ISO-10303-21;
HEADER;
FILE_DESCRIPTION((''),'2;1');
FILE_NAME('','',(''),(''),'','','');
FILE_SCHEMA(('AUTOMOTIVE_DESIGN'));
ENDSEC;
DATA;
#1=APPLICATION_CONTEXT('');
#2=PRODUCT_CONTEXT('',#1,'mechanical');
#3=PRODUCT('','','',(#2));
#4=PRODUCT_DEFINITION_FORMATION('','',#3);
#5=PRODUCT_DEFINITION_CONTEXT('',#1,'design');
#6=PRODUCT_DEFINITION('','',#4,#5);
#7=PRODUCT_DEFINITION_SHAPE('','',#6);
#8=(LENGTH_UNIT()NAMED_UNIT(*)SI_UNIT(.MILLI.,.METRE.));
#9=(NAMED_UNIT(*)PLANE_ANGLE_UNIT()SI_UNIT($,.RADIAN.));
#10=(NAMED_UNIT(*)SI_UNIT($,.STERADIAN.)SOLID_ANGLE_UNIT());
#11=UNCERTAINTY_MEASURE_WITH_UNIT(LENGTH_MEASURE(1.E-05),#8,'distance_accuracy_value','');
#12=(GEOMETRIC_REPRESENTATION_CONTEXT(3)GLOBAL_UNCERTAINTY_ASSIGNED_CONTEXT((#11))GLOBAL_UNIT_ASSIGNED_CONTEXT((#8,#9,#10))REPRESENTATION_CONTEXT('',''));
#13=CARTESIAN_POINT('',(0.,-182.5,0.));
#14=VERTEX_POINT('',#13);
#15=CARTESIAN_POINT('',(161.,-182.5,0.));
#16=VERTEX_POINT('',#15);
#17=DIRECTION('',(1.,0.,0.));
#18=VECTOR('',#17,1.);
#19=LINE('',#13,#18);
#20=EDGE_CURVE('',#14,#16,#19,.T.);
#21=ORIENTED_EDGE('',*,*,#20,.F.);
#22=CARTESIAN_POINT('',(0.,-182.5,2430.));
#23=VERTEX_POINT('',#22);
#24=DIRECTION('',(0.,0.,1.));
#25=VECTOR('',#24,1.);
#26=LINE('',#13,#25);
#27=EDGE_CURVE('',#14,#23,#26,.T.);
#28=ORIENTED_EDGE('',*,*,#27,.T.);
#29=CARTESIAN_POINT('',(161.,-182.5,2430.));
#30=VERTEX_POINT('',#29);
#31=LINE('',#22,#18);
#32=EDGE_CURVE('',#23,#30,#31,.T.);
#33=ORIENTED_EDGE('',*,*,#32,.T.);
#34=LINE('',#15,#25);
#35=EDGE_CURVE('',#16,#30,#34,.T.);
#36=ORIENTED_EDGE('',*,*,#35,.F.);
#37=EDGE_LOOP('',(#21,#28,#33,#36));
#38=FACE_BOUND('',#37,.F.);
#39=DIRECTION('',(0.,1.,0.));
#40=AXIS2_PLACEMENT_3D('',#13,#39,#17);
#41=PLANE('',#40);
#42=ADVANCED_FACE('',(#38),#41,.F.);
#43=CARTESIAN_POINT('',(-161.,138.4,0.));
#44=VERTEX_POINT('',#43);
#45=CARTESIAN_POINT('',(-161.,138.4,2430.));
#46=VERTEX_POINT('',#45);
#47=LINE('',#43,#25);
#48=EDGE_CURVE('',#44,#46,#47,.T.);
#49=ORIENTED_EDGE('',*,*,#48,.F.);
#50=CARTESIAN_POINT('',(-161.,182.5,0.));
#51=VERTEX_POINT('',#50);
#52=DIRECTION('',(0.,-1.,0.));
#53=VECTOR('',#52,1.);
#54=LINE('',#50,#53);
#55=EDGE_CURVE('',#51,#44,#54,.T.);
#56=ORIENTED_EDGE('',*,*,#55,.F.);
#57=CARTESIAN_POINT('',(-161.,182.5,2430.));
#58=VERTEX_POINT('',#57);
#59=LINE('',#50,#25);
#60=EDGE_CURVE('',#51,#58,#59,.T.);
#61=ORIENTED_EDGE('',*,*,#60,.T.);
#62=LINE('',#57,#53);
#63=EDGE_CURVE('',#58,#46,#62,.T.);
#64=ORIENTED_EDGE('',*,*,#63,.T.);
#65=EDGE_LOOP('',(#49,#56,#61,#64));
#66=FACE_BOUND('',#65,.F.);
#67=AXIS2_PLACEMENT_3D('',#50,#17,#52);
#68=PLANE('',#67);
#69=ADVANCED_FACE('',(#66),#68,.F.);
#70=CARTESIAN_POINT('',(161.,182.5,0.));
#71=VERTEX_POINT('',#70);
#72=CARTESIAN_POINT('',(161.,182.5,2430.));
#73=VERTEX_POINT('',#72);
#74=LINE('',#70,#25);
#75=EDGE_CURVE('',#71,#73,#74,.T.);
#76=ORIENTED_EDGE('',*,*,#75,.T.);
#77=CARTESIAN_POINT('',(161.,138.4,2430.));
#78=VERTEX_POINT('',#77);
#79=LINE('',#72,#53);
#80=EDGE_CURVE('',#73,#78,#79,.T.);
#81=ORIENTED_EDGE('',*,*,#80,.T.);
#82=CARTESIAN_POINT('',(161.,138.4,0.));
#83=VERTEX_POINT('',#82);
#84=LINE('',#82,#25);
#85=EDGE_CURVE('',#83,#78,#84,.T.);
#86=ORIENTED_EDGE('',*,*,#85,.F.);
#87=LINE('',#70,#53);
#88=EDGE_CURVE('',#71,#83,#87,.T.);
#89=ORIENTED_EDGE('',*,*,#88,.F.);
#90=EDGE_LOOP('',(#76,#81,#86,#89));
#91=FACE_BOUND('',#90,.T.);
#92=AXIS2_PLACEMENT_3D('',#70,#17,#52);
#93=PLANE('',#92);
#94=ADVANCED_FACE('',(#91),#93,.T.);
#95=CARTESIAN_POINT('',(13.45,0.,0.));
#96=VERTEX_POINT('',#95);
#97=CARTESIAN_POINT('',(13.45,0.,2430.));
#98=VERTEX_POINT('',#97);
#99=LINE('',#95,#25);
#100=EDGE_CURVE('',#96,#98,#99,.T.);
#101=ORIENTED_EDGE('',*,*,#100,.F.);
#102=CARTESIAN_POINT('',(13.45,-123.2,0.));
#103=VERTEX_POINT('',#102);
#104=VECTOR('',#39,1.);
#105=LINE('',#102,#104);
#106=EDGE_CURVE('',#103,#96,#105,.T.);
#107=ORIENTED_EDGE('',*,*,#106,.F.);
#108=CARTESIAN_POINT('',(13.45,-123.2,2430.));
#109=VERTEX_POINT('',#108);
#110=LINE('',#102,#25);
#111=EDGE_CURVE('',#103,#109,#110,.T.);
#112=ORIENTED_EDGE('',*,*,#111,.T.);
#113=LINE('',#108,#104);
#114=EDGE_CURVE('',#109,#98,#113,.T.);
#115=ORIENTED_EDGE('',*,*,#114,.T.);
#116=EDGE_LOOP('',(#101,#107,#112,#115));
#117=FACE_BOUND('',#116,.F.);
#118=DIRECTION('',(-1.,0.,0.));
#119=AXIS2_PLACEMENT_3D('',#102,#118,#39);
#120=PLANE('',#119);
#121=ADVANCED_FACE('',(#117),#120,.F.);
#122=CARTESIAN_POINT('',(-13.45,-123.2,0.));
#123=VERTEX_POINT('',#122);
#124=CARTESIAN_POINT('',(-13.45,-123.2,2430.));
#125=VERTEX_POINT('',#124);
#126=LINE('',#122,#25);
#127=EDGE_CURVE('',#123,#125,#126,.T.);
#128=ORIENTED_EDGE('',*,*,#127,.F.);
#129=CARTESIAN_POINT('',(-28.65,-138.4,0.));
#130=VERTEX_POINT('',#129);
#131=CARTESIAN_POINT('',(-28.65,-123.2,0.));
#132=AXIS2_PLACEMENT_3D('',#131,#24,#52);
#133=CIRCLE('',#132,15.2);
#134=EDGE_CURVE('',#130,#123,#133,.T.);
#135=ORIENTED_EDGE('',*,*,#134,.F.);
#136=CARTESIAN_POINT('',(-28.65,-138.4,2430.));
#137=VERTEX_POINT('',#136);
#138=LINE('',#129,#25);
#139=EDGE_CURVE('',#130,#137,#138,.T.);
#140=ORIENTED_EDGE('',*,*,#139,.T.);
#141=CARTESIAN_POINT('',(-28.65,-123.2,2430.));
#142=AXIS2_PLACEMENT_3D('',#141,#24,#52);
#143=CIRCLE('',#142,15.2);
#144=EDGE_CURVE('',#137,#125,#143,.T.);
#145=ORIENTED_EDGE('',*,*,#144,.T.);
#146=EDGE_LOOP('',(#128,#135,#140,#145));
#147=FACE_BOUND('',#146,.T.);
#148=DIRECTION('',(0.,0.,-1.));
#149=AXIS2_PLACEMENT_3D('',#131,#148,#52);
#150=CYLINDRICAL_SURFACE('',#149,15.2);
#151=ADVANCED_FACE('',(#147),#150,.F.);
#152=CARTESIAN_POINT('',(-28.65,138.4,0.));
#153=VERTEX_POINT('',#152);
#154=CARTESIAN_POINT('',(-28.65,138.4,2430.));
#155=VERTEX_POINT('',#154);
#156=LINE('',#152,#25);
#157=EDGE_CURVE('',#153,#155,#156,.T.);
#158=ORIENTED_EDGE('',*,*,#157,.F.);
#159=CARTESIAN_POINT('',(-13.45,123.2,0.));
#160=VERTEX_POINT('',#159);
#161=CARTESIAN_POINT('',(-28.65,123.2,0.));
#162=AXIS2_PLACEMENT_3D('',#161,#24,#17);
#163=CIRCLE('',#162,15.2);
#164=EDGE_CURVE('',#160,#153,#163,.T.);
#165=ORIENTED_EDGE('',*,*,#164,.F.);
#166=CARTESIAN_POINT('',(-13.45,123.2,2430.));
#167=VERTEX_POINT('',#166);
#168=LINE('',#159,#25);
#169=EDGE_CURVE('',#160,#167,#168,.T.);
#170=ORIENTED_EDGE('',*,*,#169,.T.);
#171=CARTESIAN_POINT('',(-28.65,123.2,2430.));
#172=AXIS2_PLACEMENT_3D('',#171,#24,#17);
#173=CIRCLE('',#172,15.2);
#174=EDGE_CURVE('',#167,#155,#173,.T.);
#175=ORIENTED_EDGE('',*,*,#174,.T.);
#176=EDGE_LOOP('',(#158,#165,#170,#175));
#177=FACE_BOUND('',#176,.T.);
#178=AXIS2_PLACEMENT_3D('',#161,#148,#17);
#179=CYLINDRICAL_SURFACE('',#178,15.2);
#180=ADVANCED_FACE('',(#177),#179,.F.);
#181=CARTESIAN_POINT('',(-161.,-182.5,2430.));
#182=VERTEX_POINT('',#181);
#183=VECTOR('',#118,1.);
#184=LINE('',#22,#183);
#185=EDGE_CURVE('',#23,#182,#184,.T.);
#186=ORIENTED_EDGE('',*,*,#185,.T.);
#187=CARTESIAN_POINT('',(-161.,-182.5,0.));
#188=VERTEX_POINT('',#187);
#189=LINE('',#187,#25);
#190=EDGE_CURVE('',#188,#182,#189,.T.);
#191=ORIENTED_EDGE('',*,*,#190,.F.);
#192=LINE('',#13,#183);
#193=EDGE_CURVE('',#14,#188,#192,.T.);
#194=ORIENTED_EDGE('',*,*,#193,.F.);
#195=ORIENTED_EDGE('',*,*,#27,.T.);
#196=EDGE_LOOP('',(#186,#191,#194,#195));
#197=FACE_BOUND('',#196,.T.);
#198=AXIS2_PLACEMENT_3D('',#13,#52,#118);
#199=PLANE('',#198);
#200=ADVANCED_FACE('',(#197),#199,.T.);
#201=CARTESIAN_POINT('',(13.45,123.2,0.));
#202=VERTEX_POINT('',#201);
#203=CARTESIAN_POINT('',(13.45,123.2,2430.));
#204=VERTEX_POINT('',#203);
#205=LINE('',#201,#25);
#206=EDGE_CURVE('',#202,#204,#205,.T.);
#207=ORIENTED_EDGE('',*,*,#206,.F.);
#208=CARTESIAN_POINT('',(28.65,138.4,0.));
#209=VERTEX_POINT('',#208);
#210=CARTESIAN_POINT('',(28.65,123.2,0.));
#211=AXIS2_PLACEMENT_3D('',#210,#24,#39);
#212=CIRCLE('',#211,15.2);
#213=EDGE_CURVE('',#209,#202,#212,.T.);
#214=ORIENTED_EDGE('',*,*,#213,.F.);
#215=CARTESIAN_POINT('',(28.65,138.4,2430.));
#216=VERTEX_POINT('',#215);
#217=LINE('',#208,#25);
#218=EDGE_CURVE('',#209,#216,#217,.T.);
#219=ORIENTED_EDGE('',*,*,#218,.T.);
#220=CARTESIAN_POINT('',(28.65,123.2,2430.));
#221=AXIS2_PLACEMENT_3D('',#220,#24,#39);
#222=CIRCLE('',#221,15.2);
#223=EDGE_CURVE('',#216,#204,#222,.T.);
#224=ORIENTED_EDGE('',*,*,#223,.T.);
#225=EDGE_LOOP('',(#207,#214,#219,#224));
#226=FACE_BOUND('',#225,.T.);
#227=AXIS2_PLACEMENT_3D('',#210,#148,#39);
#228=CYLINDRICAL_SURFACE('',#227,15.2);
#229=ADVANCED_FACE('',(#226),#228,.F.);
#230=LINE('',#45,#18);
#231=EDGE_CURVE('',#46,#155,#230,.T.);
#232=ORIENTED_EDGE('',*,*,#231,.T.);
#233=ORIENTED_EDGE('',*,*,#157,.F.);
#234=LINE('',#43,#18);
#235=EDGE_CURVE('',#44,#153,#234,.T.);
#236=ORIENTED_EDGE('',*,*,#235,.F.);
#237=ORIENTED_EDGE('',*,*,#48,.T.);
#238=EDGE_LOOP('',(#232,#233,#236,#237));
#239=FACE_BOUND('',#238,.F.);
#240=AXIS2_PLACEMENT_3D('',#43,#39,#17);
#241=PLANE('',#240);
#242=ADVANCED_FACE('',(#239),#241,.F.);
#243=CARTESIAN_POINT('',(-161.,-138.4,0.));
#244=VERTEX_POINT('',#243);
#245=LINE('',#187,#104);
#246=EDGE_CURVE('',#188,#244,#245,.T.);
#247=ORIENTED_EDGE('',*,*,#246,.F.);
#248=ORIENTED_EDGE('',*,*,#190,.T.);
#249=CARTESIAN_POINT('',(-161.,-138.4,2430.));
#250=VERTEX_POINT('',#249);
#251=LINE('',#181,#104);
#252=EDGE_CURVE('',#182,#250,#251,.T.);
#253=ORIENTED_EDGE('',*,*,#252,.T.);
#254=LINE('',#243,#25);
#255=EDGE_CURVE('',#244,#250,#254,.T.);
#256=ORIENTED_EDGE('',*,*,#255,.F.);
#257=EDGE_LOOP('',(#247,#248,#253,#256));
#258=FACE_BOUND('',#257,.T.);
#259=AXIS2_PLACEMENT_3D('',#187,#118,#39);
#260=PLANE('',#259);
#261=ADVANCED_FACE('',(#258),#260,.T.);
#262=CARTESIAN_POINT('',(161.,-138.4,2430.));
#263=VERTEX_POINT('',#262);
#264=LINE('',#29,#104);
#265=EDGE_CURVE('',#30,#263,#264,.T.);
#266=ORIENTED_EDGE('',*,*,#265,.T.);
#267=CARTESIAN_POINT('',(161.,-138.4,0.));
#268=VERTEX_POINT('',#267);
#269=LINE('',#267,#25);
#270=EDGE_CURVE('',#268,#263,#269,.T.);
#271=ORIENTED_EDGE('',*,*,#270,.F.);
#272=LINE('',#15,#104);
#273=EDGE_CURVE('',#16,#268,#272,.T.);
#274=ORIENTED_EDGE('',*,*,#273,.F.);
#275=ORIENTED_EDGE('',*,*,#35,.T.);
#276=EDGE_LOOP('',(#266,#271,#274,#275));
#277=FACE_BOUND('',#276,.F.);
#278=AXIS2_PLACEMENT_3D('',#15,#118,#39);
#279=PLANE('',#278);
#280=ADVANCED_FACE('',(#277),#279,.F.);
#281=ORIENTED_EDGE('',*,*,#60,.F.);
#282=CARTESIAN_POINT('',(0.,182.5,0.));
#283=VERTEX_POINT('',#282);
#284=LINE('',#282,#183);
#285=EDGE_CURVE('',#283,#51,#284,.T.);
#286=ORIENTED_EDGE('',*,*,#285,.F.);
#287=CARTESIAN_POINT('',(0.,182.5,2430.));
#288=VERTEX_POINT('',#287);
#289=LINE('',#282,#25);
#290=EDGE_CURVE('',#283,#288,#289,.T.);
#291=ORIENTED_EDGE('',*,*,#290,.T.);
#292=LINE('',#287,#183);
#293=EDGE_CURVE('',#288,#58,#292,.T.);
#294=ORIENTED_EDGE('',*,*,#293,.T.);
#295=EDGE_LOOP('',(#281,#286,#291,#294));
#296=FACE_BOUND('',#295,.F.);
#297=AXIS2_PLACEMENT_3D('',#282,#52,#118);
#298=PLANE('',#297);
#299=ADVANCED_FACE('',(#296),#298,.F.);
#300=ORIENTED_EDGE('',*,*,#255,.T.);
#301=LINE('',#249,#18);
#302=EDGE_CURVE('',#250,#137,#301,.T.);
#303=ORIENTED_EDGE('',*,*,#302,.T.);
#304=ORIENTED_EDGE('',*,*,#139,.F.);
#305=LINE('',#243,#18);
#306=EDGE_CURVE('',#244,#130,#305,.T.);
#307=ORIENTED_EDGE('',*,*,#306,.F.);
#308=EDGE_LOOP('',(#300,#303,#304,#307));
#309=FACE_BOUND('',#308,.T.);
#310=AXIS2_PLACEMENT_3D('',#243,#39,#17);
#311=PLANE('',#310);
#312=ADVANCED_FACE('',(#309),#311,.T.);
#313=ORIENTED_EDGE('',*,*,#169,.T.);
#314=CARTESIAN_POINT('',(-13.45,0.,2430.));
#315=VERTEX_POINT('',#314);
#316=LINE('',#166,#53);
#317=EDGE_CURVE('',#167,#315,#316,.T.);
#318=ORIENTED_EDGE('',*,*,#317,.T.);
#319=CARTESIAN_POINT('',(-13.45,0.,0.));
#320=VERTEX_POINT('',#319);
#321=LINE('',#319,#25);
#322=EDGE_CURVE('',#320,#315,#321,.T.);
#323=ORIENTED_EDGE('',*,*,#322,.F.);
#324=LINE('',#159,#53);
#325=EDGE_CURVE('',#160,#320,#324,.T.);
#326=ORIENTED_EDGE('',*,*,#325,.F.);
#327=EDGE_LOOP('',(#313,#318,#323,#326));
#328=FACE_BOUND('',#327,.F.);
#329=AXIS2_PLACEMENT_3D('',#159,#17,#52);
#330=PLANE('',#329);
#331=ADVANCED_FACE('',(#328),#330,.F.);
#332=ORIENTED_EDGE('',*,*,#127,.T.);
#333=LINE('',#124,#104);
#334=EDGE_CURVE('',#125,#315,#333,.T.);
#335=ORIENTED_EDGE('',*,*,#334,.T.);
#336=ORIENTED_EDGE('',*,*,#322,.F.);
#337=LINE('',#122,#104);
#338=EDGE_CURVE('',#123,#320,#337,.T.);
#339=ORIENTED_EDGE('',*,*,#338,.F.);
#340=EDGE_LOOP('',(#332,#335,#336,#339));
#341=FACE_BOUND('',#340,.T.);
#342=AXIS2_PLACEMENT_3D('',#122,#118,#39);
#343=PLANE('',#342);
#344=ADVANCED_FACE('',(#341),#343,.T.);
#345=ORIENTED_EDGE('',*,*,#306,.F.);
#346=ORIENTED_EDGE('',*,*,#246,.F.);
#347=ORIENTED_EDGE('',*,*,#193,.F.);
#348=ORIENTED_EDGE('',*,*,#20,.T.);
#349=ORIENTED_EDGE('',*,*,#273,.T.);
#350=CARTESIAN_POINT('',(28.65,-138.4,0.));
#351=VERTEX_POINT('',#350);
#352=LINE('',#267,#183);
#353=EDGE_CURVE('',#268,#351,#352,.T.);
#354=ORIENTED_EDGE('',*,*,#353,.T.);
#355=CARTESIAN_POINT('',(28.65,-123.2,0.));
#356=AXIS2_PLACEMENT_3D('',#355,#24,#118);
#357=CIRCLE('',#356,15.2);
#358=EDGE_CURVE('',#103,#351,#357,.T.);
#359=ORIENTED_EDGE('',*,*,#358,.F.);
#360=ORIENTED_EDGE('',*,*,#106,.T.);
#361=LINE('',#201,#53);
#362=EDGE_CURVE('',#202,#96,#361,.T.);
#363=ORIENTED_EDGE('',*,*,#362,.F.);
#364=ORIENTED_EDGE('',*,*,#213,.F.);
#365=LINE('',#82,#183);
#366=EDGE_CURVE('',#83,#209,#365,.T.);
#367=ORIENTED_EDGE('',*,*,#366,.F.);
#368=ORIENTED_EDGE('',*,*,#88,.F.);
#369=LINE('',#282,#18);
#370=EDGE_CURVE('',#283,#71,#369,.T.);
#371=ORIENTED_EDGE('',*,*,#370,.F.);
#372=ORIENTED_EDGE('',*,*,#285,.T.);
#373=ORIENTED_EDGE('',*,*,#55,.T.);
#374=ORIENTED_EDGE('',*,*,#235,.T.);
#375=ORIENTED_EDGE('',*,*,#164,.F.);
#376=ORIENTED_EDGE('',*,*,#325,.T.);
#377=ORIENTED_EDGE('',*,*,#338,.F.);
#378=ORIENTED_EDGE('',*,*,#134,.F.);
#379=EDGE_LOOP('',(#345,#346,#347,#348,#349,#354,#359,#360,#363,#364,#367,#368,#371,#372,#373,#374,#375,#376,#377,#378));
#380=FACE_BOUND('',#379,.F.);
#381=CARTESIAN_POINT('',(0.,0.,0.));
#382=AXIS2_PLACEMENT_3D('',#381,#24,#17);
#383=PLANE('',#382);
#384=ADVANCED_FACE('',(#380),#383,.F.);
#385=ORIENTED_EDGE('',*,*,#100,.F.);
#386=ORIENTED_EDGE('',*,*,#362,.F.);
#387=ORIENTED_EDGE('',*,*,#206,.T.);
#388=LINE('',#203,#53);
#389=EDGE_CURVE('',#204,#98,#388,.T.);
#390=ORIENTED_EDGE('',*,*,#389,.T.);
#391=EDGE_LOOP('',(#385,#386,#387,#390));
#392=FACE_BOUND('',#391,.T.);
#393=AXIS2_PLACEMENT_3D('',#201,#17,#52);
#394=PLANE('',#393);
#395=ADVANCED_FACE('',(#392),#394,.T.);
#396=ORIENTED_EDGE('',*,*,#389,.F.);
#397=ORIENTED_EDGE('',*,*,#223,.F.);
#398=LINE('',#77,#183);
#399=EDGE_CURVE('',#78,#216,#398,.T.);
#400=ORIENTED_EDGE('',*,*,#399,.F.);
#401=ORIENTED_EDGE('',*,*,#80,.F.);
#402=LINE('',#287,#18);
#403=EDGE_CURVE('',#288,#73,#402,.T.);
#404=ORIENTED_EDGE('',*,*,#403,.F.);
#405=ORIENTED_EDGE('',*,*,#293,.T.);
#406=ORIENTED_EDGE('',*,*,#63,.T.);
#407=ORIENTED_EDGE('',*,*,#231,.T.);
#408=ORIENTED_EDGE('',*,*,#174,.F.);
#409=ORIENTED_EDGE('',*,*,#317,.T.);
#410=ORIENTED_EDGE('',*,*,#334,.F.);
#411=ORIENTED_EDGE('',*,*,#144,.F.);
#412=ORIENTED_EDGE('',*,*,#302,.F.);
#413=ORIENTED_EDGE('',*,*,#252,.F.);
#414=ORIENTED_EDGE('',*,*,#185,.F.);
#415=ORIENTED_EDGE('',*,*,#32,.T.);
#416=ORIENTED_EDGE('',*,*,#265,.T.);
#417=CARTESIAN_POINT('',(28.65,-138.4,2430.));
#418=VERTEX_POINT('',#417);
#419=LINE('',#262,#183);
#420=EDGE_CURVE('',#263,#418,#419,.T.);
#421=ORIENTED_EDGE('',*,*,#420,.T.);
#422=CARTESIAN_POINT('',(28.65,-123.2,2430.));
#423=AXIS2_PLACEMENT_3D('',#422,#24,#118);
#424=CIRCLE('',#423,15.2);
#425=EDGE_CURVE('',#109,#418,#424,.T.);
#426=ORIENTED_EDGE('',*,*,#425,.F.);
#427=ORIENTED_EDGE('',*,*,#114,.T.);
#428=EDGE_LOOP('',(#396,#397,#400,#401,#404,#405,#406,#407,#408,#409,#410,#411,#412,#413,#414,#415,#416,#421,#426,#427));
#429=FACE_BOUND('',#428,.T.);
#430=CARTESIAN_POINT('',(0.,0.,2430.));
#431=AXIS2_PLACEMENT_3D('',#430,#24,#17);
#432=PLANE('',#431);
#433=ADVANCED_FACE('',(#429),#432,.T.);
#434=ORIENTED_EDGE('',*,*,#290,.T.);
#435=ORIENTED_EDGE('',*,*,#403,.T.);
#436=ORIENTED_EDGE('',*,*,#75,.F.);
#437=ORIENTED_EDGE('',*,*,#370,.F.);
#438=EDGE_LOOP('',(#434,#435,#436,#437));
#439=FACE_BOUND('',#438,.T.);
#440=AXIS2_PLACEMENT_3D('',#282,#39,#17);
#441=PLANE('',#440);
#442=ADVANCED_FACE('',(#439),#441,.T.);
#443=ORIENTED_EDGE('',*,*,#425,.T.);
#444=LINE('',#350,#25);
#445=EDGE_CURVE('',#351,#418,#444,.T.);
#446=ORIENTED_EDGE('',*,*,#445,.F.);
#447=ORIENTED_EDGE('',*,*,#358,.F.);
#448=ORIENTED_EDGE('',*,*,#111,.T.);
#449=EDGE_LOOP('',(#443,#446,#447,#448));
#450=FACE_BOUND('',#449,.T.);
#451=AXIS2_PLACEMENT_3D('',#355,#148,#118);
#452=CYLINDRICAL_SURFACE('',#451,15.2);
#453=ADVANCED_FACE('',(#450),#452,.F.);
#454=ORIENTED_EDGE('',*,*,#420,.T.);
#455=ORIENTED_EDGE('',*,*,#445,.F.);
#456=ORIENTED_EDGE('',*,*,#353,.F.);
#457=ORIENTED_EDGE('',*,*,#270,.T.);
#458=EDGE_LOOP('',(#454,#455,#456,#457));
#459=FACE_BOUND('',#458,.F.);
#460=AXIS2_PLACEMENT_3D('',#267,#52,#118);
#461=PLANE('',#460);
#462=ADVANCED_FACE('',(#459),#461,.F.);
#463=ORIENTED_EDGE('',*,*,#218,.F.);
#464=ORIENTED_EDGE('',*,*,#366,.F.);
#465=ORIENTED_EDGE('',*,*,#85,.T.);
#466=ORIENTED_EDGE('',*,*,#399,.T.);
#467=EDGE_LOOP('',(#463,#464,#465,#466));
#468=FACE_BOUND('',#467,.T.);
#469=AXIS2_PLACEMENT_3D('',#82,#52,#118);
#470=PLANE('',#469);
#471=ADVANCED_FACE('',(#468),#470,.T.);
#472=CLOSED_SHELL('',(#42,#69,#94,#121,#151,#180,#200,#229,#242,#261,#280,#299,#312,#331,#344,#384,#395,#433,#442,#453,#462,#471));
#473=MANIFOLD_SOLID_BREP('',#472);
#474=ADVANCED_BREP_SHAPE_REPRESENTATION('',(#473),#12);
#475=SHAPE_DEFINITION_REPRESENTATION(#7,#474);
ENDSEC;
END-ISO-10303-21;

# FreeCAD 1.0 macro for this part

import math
import FreeCAD as App
import Part
import Sketcher

V = App.Vector
Q = App.Units.Quantity

doc = App.newDocument("Part")
body = doc.addObject("PartDesign::Body", "Body")

# Sketch on XY plane
sketch1 = doc.addObject("Sketcher::SketchObject", "Sketch")
body.addObject(sketch1)
sketch1.AttachmentSupport = (doc.XY_Plane, [""])
sketch1.MapMode = "FlatFace"
sketch1.addGeometry(Part.LineSegment(V(-161, -138.4, 0), V(-161, -182.5, 0)), False)
sketch1.addGeometry(Part.LineSegment(V(-161, -182.5, 0), V(161, -182.5, 0)), False)
sketch1.addGeometry(Part.LineSegment(V(161, -182.5, 0), V(161, -138.4, 0)), False)
sketch1.addGeometry(Part.LineSegment(V(161, -138.4, 0), V(28.65, -138.4, 0)), False)
sketch1.addGeometry(Part.ArcOfCircle(Part.Circle(V(28.65, -123.2, 0), V(0, 0, 1), 15.2), math.radians(180), math.radians(270)), False)
sketch1.addGeometry(Part.LineSegment(V(13.45, -123.2, 0), V(13.45, 123.2, 0)), False)
sketch1.addGeometry(Part.ArcOfCircle(Part.Circle(V(28.65, 123.2, 0), V(0, 0, 1), 15.2), math.radians(90), math.radians(180)), False)
sketch1.addGeometry(Part.LineSegment(V(28.65, 138.4, 0), V(161, 138.4, 0)), False)
sketch1.addGeometry(Part.LineSegment(V(161, 138.4, 0), V(161, 182.5, 0)), False)
sketch1.addGeometry(Part.LineSegment(V(161, 182.5, 0), V(-161, 182.5, 0)), False)
sketch1.addGeometry(Part.LineSegment(V(-161, 182.5, 0), V(-161, 138.4, 0)), False)
sketch1.addGeometry(Part.LineSegment(V(-161, 138.4, 0), V(-28.65, 138.4, 0)), False)
sketch1.addGeometry(Part.ArcOfCircle(Part.Circle(V(-28.65, 123.2, 0), V(0, 0, 1), 15.2), math.radians(0), math.radians(90)), False)
sketch1.addGeometry(Part.LineSegment(V(-13.45, 123.2, 0), V(-13.45, -123.2, 0)), False)
sketch1.addGeometry(Part.ArcOfCircle(Part.Circle(V(-28.65, -123.2, 0), V(0, 0, 1), 15.2), math.radians(-90), math.radians(0)), False)
sketch1.addGeometry(Part.LineSegment(V(-28.65, -138.4, 0), V(-161, -138.4, 0)), False)
sketch1.addConstraint(Sketcher.Constraint("Coincident", 0, 2, 1, 1))
sketch1.addConstraint(Sketcher.Constraint("Coincident", 1, 2, 2, 1))
sketch1.addConstraint(Sketcher.Constraint("Coincident", 2, 2, 3, 1))
sketch1.addConstraint(Sketcher.Constraint("Tangent", 3, 2, 4, 2))
sketch1.addConstraint(Sketcher.Constraint("Tangent", 4, 1, 5, 1))
sketch1.addConstraint(Sketcher.Constraint("Tangent", 5, 2, 6, 2))
sketch1.addConstraint(Sketcher.Constraint("Tangent", 6, 1, 7, 1))
sketch1.addConstraint(Sketcher.Constraint("Coincident", 7, 2, 8, 1))
sketch1.addConstraint(Sketcher.Constraint("Coincident", 8, 2, 9, 1))
sketch1.addConstraint(Sketcher.Constraint("Coincident", 9, 2, 10, 1))
sketch1.addConstraint(Sketcher.Constraint("Coincident", 10, 2, 11, 1))
sketch1.addConstraint(Sketcher.Constraint("Tangent", 11, 2, 12, 2))
sketch1.addConstraint(Sketcher.Constraint("Tangent", 12, 1, 13, 1))
sketch1.addConstraint(Sketcher.Constraint("Tangent", 13, 2, 14, 2))
sketch1.addConstraint(Sketcher.Constraint("Tangent", 14, 1, 15, 1))
sketch1.addConstraint(Sketcher.Constraint("Coincident", 15, 2, 0, 1))
sketch1.addConstraint(Sketcher.Constraint("Vertical", 0))
sketch1.addConstraint(Sketcher.Constraint("Horizontal", 1))
sketch1.addConstraint(Sketcher.Constraint("Vertical", 2))
sketch1.addConstraint(Sketcher.Constraint("Horizontal", 3))
sketch1.addConstraint(Sketcher.Constraint("Vertical", 5))
sketch1.addConstraint(Sketcher.Constraint("Horizontal", 7))
sketch1.addConstraint(Sketcher.Constraint("Vertical", 8))
sketch1.addConstraint(Sketcher.Constraint("Horizontal", 9))
sketch1.addConstraint(Sketcher.Constraint("Vertical", 10))
sketch1.addConstraint(Sketcher.Constraint("Horizontal", 11))
sketch1.addConstraint(Sketcher.Constraint("Vertical", 13))
sketch1.addConstraint(Sketcher.Constraint("Horizontal", 15))
sketch1.addConstraint(Sketcher.Constraint("Equal", 4, 6))
sketch1.addConstraint(Sketcher.Constraint("Equal", 6, 12))
sketch1.addConstraint(Sketcher.Constraint("Equal", 12, 14))
sketch1.addConstraint(Sketcher.Constraint("Symmetric", 4, 3, 12, 3, -1, 1))
sketch1.addConstraint(Sketcher.Constraint("Symmetric", 0, 2, 8, 2, -1, 1))
sketch1.addConstraint(Sketcher.Constraint("Symmetric", 7, 2, 10, 2, -2))
sketch1.addConstraint(Sketcher.Constraint("Symmetric", 2, 2, 15, 2, -2))
sketch1.addConstraint(Sketcher.Constraint("Radius", 4, Q("15.2 mm")))
sketch1.addConstraint(Sketcher.Constraint("DistanceY", 0, 2, 0, 1, Q("44.1 mm")))
sketch1.addConstraint(Sketcher.Constraint("DistanceX", 0, 2, -1, 1, Q("161 mm")))
sketch1.addConstraint(Sketcher.Constraint("DistanceY", 0, 2, -1, 1, Q("182.5 mm")))
sketch1.addConstraint(Sketcher.Constraint("DistanceX", -1, 1, 4, 1, Q("13.45 mm")))
pad1 = doc.addObject("PartDesign::Pad", "Pad")
body.addObject(pad1)
pad1.Profile = sketch1
pad1.Length = 2430

doc.recompute()
